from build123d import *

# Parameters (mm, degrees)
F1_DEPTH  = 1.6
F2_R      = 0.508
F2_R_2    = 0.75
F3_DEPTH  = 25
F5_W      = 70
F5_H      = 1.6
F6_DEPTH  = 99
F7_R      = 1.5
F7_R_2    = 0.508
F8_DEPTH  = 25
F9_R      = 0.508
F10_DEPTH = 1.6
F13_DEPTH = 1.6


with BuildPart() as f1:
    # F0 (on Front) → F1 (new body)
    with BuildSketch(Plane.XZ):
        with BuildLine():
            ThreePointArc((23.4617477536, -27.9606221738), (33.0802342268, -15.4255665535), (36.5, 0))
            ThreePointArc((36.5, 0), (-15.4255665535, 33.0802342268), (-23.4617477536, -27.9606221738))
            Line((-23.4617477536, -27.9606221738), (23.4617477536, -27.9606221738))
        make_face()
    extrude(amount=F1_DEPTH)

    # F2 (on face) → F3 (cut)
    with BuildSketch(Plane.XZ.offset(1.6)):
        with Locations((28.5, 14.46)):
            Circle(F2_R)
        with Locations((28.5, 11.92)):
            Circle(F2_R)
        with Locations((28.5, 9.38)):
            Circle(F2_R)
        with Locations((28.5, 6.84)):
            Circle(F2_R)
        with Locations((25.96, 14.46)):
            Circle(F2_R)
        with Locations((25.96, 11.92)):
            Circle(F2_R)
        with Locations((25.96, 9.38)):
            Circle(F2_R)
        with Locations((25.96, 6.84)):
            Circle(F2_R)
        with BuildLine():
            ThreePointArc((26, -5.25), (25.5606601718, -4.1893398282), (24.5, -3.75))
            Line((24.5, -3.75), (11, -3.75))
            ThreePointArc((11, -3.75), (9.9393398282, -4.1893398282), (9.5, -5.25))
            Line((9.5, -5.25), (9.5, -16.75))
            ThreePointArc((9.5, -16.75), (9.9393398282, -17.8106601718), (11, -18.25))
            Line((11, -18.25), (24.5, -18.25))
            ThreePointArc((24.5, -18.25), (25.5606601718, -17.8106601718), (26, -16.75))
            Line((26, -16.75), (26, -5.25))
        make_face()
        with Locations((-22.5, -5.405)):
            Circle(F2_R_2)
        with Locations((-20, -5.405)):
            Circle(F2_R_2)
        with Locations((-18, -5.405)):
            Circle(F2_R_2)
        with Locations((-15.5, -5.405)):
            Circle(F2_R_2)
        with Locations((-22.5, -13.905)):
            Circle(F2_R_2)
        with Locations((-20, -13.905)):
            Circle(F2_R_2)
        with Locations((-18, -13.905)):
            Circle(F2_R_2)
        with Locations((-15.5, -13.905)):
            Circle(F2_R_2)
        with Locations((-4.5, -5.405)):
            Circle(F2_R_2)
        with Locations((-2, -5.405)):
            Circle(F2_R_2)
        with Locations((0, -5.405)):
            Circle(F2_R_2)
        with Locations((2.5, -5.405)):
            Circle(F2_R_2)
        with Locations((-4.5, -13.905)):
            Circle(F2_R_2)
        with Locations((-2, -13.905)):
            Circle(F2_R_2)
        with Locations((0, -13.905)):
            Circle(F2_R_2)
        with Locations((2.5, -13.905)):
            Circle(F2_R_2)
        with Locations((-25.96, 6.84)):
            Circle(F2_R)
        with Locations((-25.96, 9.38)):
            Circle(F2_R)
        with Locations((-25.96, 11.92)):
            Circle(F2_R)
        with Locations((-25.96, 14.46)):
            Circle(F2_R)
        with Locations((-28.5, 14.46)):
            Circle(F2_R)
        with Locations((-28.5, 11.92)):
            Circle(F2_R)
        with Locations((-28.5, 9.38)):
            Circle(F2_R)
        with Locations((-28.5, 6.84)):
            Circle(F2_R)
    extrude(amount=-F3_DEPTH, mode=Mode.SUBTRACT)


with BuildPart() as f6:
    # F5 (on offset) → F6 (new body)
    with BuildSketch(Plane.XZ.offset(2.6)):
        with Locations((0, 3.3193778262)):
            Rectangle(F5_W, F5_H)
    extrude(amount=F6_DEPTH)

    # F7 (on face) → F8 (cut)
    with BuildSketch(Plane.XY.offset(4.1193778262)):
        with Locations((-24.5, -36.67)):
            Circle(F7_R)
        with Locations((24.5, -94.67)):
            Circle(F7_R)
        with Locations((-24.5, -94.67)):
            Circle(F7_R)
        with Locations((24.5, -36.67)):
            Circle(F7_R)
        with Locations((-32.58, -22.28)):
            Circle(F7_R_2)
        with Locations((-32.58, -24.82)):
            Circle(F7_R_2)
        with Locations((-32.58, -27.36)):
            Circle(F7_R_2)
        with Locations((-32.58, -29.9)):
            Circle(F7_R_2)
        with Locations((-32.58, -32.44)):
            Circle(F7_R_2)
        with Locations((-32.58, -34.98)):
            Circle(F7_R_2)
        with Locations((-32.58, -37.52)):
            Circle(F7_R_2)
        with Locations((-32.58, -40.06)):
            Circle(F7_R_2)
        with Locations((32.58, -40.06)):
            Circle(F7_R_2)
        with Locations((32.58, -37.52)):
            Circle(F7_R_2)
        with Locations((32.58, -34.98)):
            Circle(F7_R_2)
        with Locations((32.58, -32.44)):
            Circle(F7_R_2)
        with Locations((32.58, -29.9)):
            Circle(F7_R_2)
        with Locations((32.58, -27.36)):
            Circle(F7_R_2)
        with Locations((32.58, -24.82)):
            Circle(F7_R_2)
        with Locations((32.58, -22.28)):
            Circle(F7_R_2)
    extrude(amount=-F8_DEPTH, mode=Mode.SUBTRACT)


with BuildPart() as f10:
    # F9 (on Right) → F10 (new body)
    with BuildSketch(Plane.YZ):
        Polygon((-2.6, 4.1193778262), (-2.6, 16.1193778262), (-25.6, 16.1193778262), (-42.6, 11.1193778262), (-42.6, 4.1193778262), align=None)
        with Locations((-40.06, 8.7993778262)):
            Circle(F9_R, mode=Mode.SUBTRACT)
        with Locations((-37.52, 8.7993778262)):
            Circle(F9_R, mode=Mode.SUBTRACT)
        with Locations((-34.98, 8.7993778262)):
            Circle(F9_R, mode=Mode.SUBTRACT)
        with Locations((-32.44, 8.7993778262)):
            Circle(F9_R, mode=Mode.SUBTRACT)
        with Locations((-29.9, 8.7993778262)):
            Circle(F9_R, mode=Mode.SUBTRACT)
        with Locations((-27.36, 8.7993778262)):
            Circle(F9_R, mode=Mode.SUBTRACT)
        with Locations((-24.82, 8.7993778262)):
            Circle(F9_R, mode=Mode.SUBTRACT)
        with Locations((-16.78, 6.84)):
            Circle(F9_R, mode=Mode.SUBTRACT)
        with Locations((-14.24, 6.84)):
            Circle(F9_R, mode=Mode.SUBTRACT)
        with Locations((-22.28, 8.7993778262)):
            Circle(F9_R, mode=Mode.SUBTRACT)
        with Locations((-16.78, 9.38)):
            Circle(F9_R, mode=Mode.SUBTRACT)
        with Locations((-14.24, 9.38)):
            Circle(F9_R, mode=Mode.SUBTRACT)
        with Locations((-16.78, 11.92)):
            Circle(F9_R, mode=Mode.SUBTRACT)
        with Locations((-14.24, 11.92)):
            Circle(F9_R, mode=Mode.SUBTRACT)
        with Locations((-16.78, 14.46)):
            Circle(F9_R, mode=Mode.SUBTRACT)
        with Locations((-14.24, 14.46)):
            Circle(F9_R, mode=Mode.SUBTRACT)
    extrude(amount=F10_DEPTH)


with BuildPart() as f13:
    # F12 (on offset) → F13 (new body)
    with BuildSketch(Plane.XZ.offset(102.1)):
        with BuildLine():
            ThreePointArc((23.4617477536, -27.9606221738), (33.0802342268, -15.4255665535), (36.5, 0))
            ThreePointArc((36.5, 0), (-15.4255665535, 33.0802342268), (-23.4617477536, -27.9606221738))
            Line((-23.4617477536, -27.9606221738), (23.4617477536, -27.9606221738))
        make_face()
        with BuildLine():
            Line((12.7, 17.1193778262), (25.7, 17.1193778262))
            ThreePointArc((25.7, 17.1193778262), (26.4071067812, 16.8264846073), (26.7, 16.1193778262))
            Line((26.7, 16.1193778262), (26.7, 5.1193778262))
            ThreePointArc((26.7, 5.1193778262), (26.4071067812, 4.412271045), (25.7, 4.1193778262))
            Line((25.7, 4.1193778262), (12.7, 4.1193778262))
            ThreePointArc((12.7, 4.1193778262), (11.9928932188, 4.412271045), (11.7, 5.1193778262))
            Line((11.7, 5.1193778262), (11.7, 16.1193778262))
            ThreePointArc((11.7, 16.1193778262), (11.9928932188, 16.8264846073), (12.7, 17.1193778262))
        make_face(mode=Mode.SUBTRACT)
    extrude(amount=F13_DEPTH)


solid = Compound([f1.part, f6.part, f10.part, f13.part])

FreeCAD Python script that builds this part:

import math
import FreeCAD as App
import Part
import Sketcher
from FreeCAD import Vector


def add_polygon(sketch, points):
    """Adds a closed chain of lines whose ends are joined by coincident constraints."""
    first, n = sketch.GeometryCount, len(points)
    for a, b in zip(points, points[1:] + points[:1]):
        sketch.addGeometry(Part.LineSegment(App.Vector(*a, 0), App.Vector(*b, 0)), False)
    for i in range(n):
        sketch.addConstraint(Sketcher.Constraint("Coincident", first + i, 2, first + (i + 1) % n, 1))

doc = App.newDocument("Part")
body = doc.addObject("PartDesign::Body", "Body")

# Sketch on XZ plane
sketch1 = body.newObject("Sketcher::SketchObject", "Sketch")
sketch1.AttachmentSupport = (doc.getObject("XZ_Plane"), [""])
sketch1.MapMode = "FlatFace"
sketch1.addGeometry(Part.ArcOfCircle(Part.Circle(Vector(0, 0, 0), Vector(0, 0, 1), 36.5), math.radians(-50), math.radians(0)), False)
sketch1.addGeometry(Part.ArcOfCircle(Part.Circle(Vector(0, 0, 0), Vector(0, 0, 1), 36.5), math.radians(0), math.radians(230)), False)
sketch1.addGeometry(Part.LineSegment(Vector(-23.461748, -27.960622, 0), Vector(23.461748, -27.960622, 0)), False)
sketch1.addConstraint(Sketcher.Constraint("Tangent", 0, 2, 1, 1))
sketch1.addConstraint(Sketcher.Constraint("Coincident", 1, 2, 2, 1))
sketch1.addConstraint(Sketcher.Constraint("Coincident", 2, 2, 0, 1))
sketch1.addConstraint(Sketcher.Constraint("Horizontal", 2))
sketch1.addConstraint(Sketcher.Constraint("Coincident", 0, 3, -1, 1))
sketch1.addConstraint(Sketcher.Constraint("Equal", 0, 1))
sketch1.addConstraint(Sketcher.Constraint("PointOnObject", 0, 2, -1))
sketch1.addConstraint(Sketcher.Constraint("Radius", 0, 36.5))
sketch1.addConstraint(Sketcher.Constraint("DistanceX", 2, 1, 2, 2, 46.923496))
pad1 = body.newObject("PartDesign::Pad", "Pad")
pad1.Profile = sketch1
pad1.Length = 1.6

# Sketch on XZ plane
sketch2 = body.newObject("Sketcher::SketchObject", "Sketch001")
sketch2.AttachmentSupport = (doc.getObject("XZ_Plane"), [""])
sketch2.MapMode = "FlatFace"
sketch2.AttachmentOffset = App.Placement(Vector(0, 0, 1.6), App.Rotation())
sketch2.addGeometry(Part.Circle(Vector(28.5, 14.46, 0), Vector(0, 0, 1), 0.508), False)
sketch2.addGeometry(Part.Circle(Vector(28.5, 11.92, 0), Vector(0, 0, 1), 0.508), False)
sketch2.addGeometry(Part.Circle(Vector(28.5, 9.38, 0), Vector(0, 0, 1), 0.508), False)
sketch2.addGeometry(Part.Circle(Vector(28.5, 6.84, 0), Vector(0, 0, 1), 0.508), False)
sketch2.addGeometry(Part.Circle(Vector(25.96, 14.46, 0), Vector(0, 0, 1), 0.508), False)
sketch2.addGeometry(Part.Circle(Vector(25.96, 11.92, 0), Vector(0, 0, 1), 0.508), False)
sketch2.addGeometry(Part.Circle(Vector(25.96, 9.38, 0), Vector(0, 0, 1), 0.508), False)
sketch2.addGeometry(Part.Circle(Vector(25.96, 6.84, 0), Vector(0, 0, 1), 0.508), False)
sketch2.addGeometry(Part.ArcOfCircle(Part.Circle(Vector(24.5, -5.25, 0), Vector(0, 0, 1), 1.5), math.radians(0), math.radians(90)), False)
sketch2.addGeometry(Part.LineSegment(Vector(24.5, -3.75, 0), Vector(11, -3.75, 0)), False)
sketch2.addGeometry(Part.ArcOfCircle(Part.Circle(Vector(11, -5.25, 0), Vector(0, 0, 1), 1.5), math.radians(90), math.radians(180)), False)
sketch2.addGeometry(Part.LineSegment(Vector(9.5, -5.25, 0), Vector(9.5, -16.75, 0)), False)
sketch2.addGeometry(Part.ArcOfCircle(Part.Circle(Vector(11, -16.75, 0), Vector(0, 0, 1), 1.5), math.radians(180), math.radians(270)), False)
sketch2.addGeometry(Part.LineSegment(Vector(11, -18.25, 0), Vector(24.5, -18.25, 0)), False)
sketch2.addGeometry(Part.ArcOfCircle(Part.Circle(Vector(24.5, -16.75, 0), Vector(0, 0, 1), 1.5), math.radians(-90), math.radians(0)), False)
sketch2.addGeometry(Part.LineSegment(Vector(26, -16.75, 0), Vector(26, -5.25, 0)), False)
sketch2.addGeometry(Part.Circle(Vector(-22.5, -5.405, 0), Vector(0, 0, 1), 0.75), False)
sketch2.addGeometry(Part.Circle(Vector(-20, -5.405, 0), Vector(0, 0, 1), 0.75), False)
sketch2.addGeometry(Part.Circle(Vector(-18, -5.405, 0), Vector(0, 0, 1), 0.75), False)
sketch2.addGeometry(Part.Circle(Vector(-15.5, -5.405, 0), Vector(0, 0, 1), 0.75), False)
sketch2.addGeometry(Part.Circle(Vector(-22.5, -13.905, 0), Vector(0, 0, 1), 0.75), False)
sketch2.addGeometry(Part.Circle(Vector(-20, -13.905, 0), Vector(0, 0, 1), 0.75), False)
sketch2.addGeometry(Part.Circle(Vector(-18, -13.905, 0), Vector(0, 0, 1), 0.75), False)
sketch2.addGeometry(Part.Circle(Vector(-15.5, -13.905, 0), Vector(0, 0, 1), 0.75), False)
sketch2.addGeometry(Part.Circle(Vector(-4.5, -5.405, 0), Vector(0, 0, 1), 0.75), False)
sketch2.addGeometry(Part.Circle(Vector(-2, -5.405, 0), Vector(0, 0, 1), 0.75), False)
sketch2.addGeometry(Part.Circle(Vector(0, -5.405, 0), Vector(0, 0, 1), 0.75), False)
sketch2.addGeometry(Part.Circle(Vector(2.5, -5.405, 0), Vector(0, 0, 1), 0.75), False)
sketch2.addGeometry(Part.Circle(Vector(-4.5, -13.905, 0), Vector(0, 0, 1), 0.75), False)
sketch2.addGeometry(Part.Circle(Vector(-2, -13.905, 0), Vector(0, 0, 1), 0.75), False)
sketch2.addGeometry(Part.Circle(Vector(0, -13.905, 0), Vector(0, 0, 1), 0.75), False)
sketch2.addGeometry(Part.Circle(Vector(2.5, -13.905, 0), Vector(0, 0, 1), 0.75), False)
sketch2.addGeometry(Part.Circle(Vector(-25.96, 6.84, 0), Vector(0, 0, 1), 0.508), False)
sketch2.addGeometry(Part.Circle(Vector(-25.96, 9.38, 0), Vector(0, 0, 1), 0.508), False)
sketch2.addGeometry(Part.Circle(Vector(-25.96, 11.92, 0), Vector(0, 0, 1), 0.508), False)
sketch2.addGeometry(Part.Circle(Vector(-25.96, 14.46, 0), Vector(0, 0, 1), 0.508), False)
sketch2.addGeometry(Part.Circle(Vector(-28.5, 14.46, 0), Vector(0, 0, 1), 0.508), False)
sketch2.addGeometry(Part.Circle(Vector(-28.5, 11.92, 0), Vector(0, 0, 1), 0.508), False)
sketch2.addGeometry(Part.Circle(Vector(-28.5, 9.38, 0), Vector(0, 0, 1), 0.508), False)
sketch2.addGeometry(Part.Circle(Vector(-28.5, 6.84, 0), Vector(0, 0, 1), 0.508), False)
sketch2.addConstraint(Sketcher.Constraint("Tangent", 8, 2, 9, 1))
sketch2.addConstraint(Sketcher.Constraint("Tangent", 9, 2, 10, 1))
sketch2.addConstraint(Sketcher.Constraint("Tangent", 10, 2, 11, 1))
sketch2.addConstraint(Sketcher.Constraint("Tangent", 11, 2, 12, 1))
sketch2.addConstraint(Sketcher.Constraint("Tangent", 12, 2, 13, 1))
sketch2.addConstraint(Sketcher.Constraint("Tangent", 13, 2, 14, 1))
sketch2.addConstraint(Sketcher.Constraint("Tangent", 14, 2, 15, 1))
sketch2.addConstraint(Sketcher.Constraint("Tangent", 15, 2, 8, 1))
sketch2.addConstraint(Sketcher.Constraint("Horizontal", 9))
sketch2.addConstraint(Sketcher.Constraint("Vertical", 11))
sketch2.addConstraint(Sketcher.Constraint("Horizontal", 13))
sketch2.addConstraint(Sketcher.Constraint("Vertical", 15))
sketch2.addConstraint(Sketcher.Constraint("Equal", 0, 1))
sketch2.addConstraint(Sketcher.Constraint("Equal", 1, 2))
sketch2.addConstraint(Sketcher.Constraint("Equal", 2, 3))
sketch2.addConstraint(Sketcher.Constraint("Equal", 3, 4))
sketch2.addConstraint(Sketcher.Constraint("Equal", 4, 5))
sketch2.addConstraint(Sketcher.Constraint("Equal", 5, 6))
sketch2.addConstraint(Sketcher.Constraint("Equal", 6, 7))
sketch2.addConstraint(Sketcher.Constraint("Equal", 8, 10))
sketch2.addConstraint(Sketcher.Constraint("Equal", 10, 12))
sketch2.addConstraint(Sketcher.Constraint("Equal", 12, 14))
sketch2.addConstraint(Sketcher.Constraint("Equal", 16, 17))
sketch2.addConstraint(Sketcher.Constraint("Equal", 17, 18))
sketch2.addConstraint(Sketcher.Constraint("Equal", 18, 19))
sketch2.addConstraint(Sketcher.Constraint("Equal", 19, 20))
sketch2.addConstraint(Sketcher.Constraint("Equal", 20, 21))
sketch2.addConstraint(Sketcher.Constraint("Equal", 21, 22))
sketch2.addConstraint(Sketcher.Constraint("Equal", 22, 23))
sketch2.addConstraint(Sketcher.Constraint("Equal", 23, 24))
sketch2.addConstraint(Sketcher.Constraint("Equal", 24, 25))
sketch2.addConstraint(Sketcher.Constraint("Equal", 25, 26))
sketch2.addConstraint(Sketcher.Constraint("Equal", 26, 27))
sketch2.addConstraint(Sketcher.Constraint("Equal", 27, 28))
sketch2.addConstraint(Sketcher.Constraint("Equal", 28, 29))
sketch2.addConstraint(Sketcher.Constraint("Equal", 29, 30))
sketch2.addConstraint(Sketcher.Constraint("Equal", 30, 31))
sketch2.addConstraint(Sketcher.Constraint("Equal", 7, 32))
sketch2.addConstraint(Sketcher.Constraint("Equal", 32, 33))
sketch2.addConstraint(Sketcher.Constraint("Equal", 33, 34))
sketch2.addConstraint(Sketcher.Constraint("Equal", 34, 35))
sketch2.addConstraint(Sketcher.Constraint("Equal", 35, 36))
sketch2.addConstraint(Sketcher.Constraint("Equal", 36, 37))
sketch2.addConstraint(Sketcher.Constraint("Equal", 37, 38))
sketch2.addConstraint(Sketcher.Constraint("Equal", 38, 39))
sketch2.addConstraint(Sketcher.Constraint("Symmetric", 7, 3, 32, 3, -2))
sketch2.addConstraint(Sketcher.Constraint("Symmetric", 6, 3, 33, 3, -2))
sketch2.addConstraint(Sketcher.Constraint("Symmetric", 5, 3, 34, 3, -2))
sketch2.addConstraint(Sketcher.Constraint("Symmetric", 4, 3, 35, 3, -2))
sketch2.addConstraint(Sketcher.Constraint("Symmetric", 0, 3, 36, 3, -2))
sketch2.addConstraint(Sketcher.Constraint("Symmetric", 1, 3, 37, 3, -2))
sketch2.addConstraint(Sketcher.Constraint("Symmetric", 2, 3, 38, 3, -2))
sketch2.addConstraint(Sketcher.Constraint("Symmetric", 3, 3, 39, 3, -2))
sketch2.addConstraint(Sketcher.Constraint("PointOnObject", 26, 3, -2))
sketch2.addConstraint(Sketcher.Constraint("PointOnObject", 30, 3, -2))
sketch2.addConstraint(Sketcher.Constraint("Horizontal", 0, 3, 4, 3))
sketch2.addConstraint(Sketcher.Constraint("Horizontal", 1, 3, 5, 3))
sketch2.addConstraint(Sketcher.Constraint("Horizontal", 2, 3, 6, 3))
sketch2.addConstraint(Sketcher.Constraint("Horizontal", 3, 3, 7, 3))
sketch2.addConstraint(Sketcher.Constraint("Horizontal", 16, 3, 17, 3))
sketch2.addConstraint(Sketcher.Constraint("Horizontal", 17, 3, 18, 3))
sketch2.addConstraint(Sketcher.Constraint("Horizontal", 18, 3, 19, 3))
sketch2.addConstraint(Sketcher.Constraint("Horizontal", 20, 3, 21, 3))
sketch2.addConstraint(Sketcher.Constraint("Horizontal", 21, 3, 22, 3))
sketch2.addConstraint(Sketcher.Constraint("Horizontal", 22, 3, 23, 3))
sketch2.addConstraint(Sketcher.Constraint("Horizontal", 19, 3, 24, 3))
sketch2.addConstraint(Sketcher.Constraint("Horizontal", 24, 3, 25, 3))
sketch2.addConstraint(Sketcher.Constraint("Horizontal", 25, 3, 26, 3))
sketch2.addConstraint(Sketcher.Constraint("Horizontal", 26, 3, 27, 3))
sketch2.addConstraint(Sketcher.Constraint("Horizontal", 23, 3, 28, 3))
sketch2.addConstraint(Sketcher.Constraint("Horizontal", 28, 3, 29, 3))
sketch2.addConstraint(Sketcher.Constraint("Horizontal", 29, 3, 30, 3))
sketch2.addConstraint(Sketcher.Constraint("Horizontal", 30, 3, 31, 3))
sketch2.addConstraint(Sketcher.Constraint("Vertical", 0, 3, 1, 3))
sketch2.addConstraint(Sketcher.Constraint("Vertical", 1, 3, 2, 3))
sketch2.addConstraint(Sketcher.Constraint("Vertical", 2, 3, 3, 3))
sketch2.addConstraint(Sketcher.Constraint("Vertical", 4, 3, 5, 3))
sketch2.addConstraint(Sketcher.Constraint("Vertical", 5, 3, 6, 3))
sketch2.addConstraint(Sketcher.Constraint("Vertical", 6, 3, 7, 3))
sketch2.addConstraint(Sketcher.Constraint("Vertical", 16, 3, 20, 3))
sketch2.addConstraint(Sketcher.Constraint("Vertical", 17, 3, 21, 3))
sketch2.addConstraint(Sketcher.Constraint("Vertical", 18, 3, 22, 3))
sketch2.addConstraint(Sketcher.Constraint("Vertical", 19, 3, 23, 3))
sketch2.addConstraint(Sketcher.Constraint("Vertical", 24, 3, 28, 3))
sketch2.addConstraint(Sketcher.Constraint("Vertical", 25, 3, 29, 3))
sketch2.addConstraint(Sketcher.Constraint("Vertical", 27, 3, 31, 3))
sketch2.addConstraint(Sketcher.Constraint("Diameter", 16, 1.5))
sketch2.addConstraint(Sketcher.Constraint("Radius", 8, 1.5))
sketch2.addConstraint(Sketcher.Constraint("Diameter", 0, 1.016))
sketch2.addConstraint(Sketcher.Constraint("DistanceX", 9, 2, 9, 1, 13.5))
sketch2.addConstraint(Sketcher.Constraint("DistanceY", 11, 2, 11, 1, 11.5))
sketch2.addConstraint(Sketcher.Constraint("DistanceX", -1, 1, 10, 3, 11.0))
sketch2.addConstraint(Sketcher.Constraint("DistanceX", 17, 3, -1, 1, 20.0))
sketch2.addConstraint(Sketcher.Constraint("DistanceX", 18, 3, -1, 1, 18.0))
sketch2.addConstraint(Sketcher.Constraint("DistanceX", 25, 3, -1, 1, 2.0))
sketch2.addConstraint(Sketcher.Constraint("DistanceX", 8, 3, 3, 3, 4.0))
sketch2.addConstraint(Sketcher.Constraint("DistanceX", 16, 3, 8, 3, 47.0))
sketch2.addConstraint(Sketcher.Constraint("DistanceX", 16, 3, 19, 3, 7.0))
sketch2.addConstraint(Sketcher.Constraint("DistanceX", 19, 3, 24, 3, 11.0))
sketch2.addConstraint(Sketcher.Constraint("DistanceX", 24, 3, 27, 3, 7.0))
sketch2.addConstraint(Sketcher.Constraint("DistanceY", 20, 3, 16, 3, 8.5))
sketch2.addConstraint(Sketcher.Constraint("DistanceY", -1, 1, 0, 3, 14.46))
sketch2.addConstraint(Sketcher.Constraint("DistanceY", -1, 1, 1, 3, 11.92))
sketch2.addConstraint(Sketcher.Constraint("DistanceY", -1, 1, 2, 3, 9.38))
sketch2.addConstraint(Sketcher.Constraint("DistanceY", -1, 1, 3, 3, 6.84))
sketch2.addConstraint(Sketcher.Constraint("DistanceX", -1, 1, 4, 3, 25.96))
sketch2.addConstraint(Sketcher.Constraint("DistanceY", 8, 3, -1, 1, 5.25))
sketch2.addConstraint(Sketcher.Constraint("DistanceY", 16, 3, -1, 1, 5.405))
pocket1 = body.newObject("PartDesign::Pocket", "Pocket")
pocket1.Profile = sketch2
pocket1.Length = 25
body2 = doc.addObject("PartDesign::Body", "Body001")

# Sketch on XZ plane
sketch3 = body2.newObject("Sketcher::SketchObject", "Sketch002")
sketch3.AttachmentSupport = (doc.getObject("XZ_Plane001"), [""])
sketch3.MapMode = "FlatFace"
sketch3.AttachmentOffset = App.Placement(Vector(0, 0, 2.6), App.Rotation())
add_polygon(sketch3, [(-35, 4.119378), (-35, 2.519378), (35, 2.519378), (35, 4.119378)])  # lines 0-3
sketch3.addConstraint(Sketcher.Constraint("Vertical", 0))
sketch3.addConstraint(Sketcher.Constraint("Horizontal", 1))
sketch3.addConstraint(Sketcher.Constraint("Vertical", 2))
sketch3.addConstraint(Sketcher.Constraint("Horizontal", 3))
sketch3.addConstraint(Sketcher.Constraint("DistanceX", 1, 1, 1, 2, 70.0))
sketch3.addConstraint(Sketcher.Constraint("DistanceY", 0, 2, 0, 1, 1.6))
sketch3.addConstraint(Sketcher.Constraint("DistanceX", 0, 2, -1, 1, 35.0))
sketch3.addConstraint(Sketcher.Constraint("DistanceY", -1, 1, 0, 2, 2.519378))
pad2 = body2.newObject("PartDesign::Pad", "Pad001")
pad2.Profile = sketch3
pad2.Length = 99

# Sketch on XY plane
sketch4 = body2.newObject("Sketcher::SketchObject", "Sketch003")
sketch4.AttachmentSupport = (doc.getObject("XY_Plane001"), [""])
sketch4.MapMode = "FlatFace"
sketch4.AttachmentOffset = App.Placement(Vector(0, 0, 4.119378), App.Rotation())
sketch4.addGeometry(Part.Circle(Vector(-24.5, -36.67, 0), Vector(0, 0, 1), 1.5), False)
sketch4.addGeometry(Part.Circle(Vector(24.5, -94.67, 0), Vector(0, 0, 1), 1.5), False)
sketch4.addGeometry(Part.Circle(Vector(-24.5, -94.67, 0), Vector(0, 0, 1), 1.5), False)
sketch4.addGeometry(Part.Circle(Vector(24.5, -36.67, 0), Vector(0, 0, 1), 1.5), False)
sketch4.addGeometry(Part.Circle(Vector(-32.58, -22.28, 0), Vector(0, 0, 1), 0.508), False)
sketch4.addGeometry(Part.Circle(Vector(-32.58, -24.82, 0), Vector(0, 0, 1), 0.508), False)
sketch4.addGeometry(Part.Circle(Vector(-32.58, -27.36, 0), Vector(0, 0, 1), 0.508), False)
sketch4.addGeometry(Part.Circle(Vector(-32.58, -29.9, 0), Vector(0, 0, 1), 0.508), False)
sketch4.addGeometry(Part.Circle(Vector(-32.58, -32.44, 0), Vector(0, 0, 1), 0.508), False)
sketch4.addGeometry(Part.Circle(Vector(-32.58, -34.98, 0), Vector(0, 0, 1), 0.508), False)
sketch4.addGeometry(Part.Circle(Vector(-32.58, -37.52, 0), Vector(0, 0, 1), 0.508), False)
sketch4.addGeometry(Part.Circle(Vector(-32.58, -40.06, 0), Vector(0, 0, 1), 0.508), False)
sketch4.addGeometry(Part.Circle(Vector(32.58, -40.06, 0), Vector(0, 0, 1), 0.508), False)
sketch4.addGeometry(Part.Circle(Vector(32.58, -37.52, 0), Vector(0, 0, 1), 0.508), False)
sketch4.addGeometry(Part.Circle(Vector(32.58, -34.98, 0), Vector(0, 0, 1), 0.508), False)
sketch4.addGeometry(Part.Circle(Vector(32.58, -32.44, 0), Vector(0, 0, 1), 0.508), False)
sketch4.addGeometry(Part.Circle(Vector(32.58, -29.9, 0), Vector(0, 0, 1), 0.508), False)
sketch4.addGeometry(Part.Circle(Vector(32.58, -27.36, 0), Vector(0, 0, 1), 0.508), False)
sketch4.addGeometry(Part.Circle(Vector(32.58, -24.82, 0), Vector(0, 0, 1), 0.508), False)
sketch4.addGeometry(Part.Circle(Vector(32.58, -22.28, 0), Vector(0, 0, 1), 0.508), False)
sketch4.addConstraint(Sketcher.Constraint("Equal", 0, 1))
sketch4.addConstraint(Sketcher.Constraint("Equal", 1, 2))
sketch4.addConstraint(Sketcher.Constraint("Equal", 2, 3))
sketch4.addConstraint(Sketcher.Constraint("Equal", 4, 5))
sketch4.addConstraint(Sketcher.Constraint("Equal", 5, 6))
sketch4.addConstraint(Sketcher.Constraint("Equal", 6, 7))
sketch4.addConstraint(Sketcher.Constraint("Equal", 7, 8))
sketch4.addConstraint(Sketcher.Constraint("Equal", 8, 9))
sketch4.addConstraint(Sketcher.Constraint("Equal", 9, 10))
sketch4.addConstraint(Sketcher.Constraint("Equal", 10, 11))
sketch4.addConstraint(Sketcher.Constraint("Equal", 11, 12))
sketch4.addConstraint(Sketcher.Constraint("Equal", 12, 13))
sketch4.addConstraint(Sketcher.Constraint("Equal", 13, 14))
sketch4.addConstraint(Sketcher.Constraint("Equal", 14, 15))
sketch4.addConstraint(Sketcher.Constraint("Equal", 15, 16))
sketch4.addConstraint(Sketcher.Constraint("Equal", 16, 17))
sketch4.addConstraint(Sketcher.Constraint("Equal", 17, 18))
sketch4.addConstraint(Sketcher.Constraint("Equal", 18, 19))
sketch4.addConstraint(Sketcher.Constraint("Symmetric", 1, 3, 2, 3, -2))
sketch4.addConstraint(Sketcher.Constraint("Symmetric", 0, 3, 3, 3, -2))
sketch4.addConstraint(Sketcher.Constraint("Symmetric", 11, 3, 12, 3, -2))
sketch4.addConstraint(Sketcher.Constraint("Symmetric", 10, 3, 13, 3, -2))
sketch4.addConstraint(Sketcher.Constraint("Symmetric", 9, 3, 14, 3, -2))
sketch4.addConstraint(Sketcher.Constraint("Symmetric", 8, 3, 15, 3, -2))
sketch4.addConstraint(Sketcher.Constraint("Symmetric", 7, 3, 16, 3, -2))
sketch4.addConstraint(Sketcher.Constraint("Symmetric", 6, 3, 17, 3, -2))
sketch4.addConstraint(Sketcher.Constraint("Symmetric", 5, 3, 18, 3, -2))
sketch4.addConstraint(Sketcher.Constraint("Symmetric", 4, 3, 19, 3, -2))
sketch4.addConstraint(Sketcher.Constraint("Vertical", 0, 3, 2, 3))
sketch4.addConstraint(Sketcher.Constraint("Vertical", 4, 3, 5, 3))
sketch4.addConstraint(Sketcher.Constraint("Vertical", 5, 3, 6, 3))
sketch4.addConstraint(Sketcher.Constraint("Vertical", 6, 3, 7, 3))
sketch4.addConstraint(Sketcher.Constraint("Vertical", 7, 3, 8, 3))
sketch4.addConstraint(Sketcher.Constraint("Vertical", 8, 3, 9, 3))
sketch4.addConstraint(Sketcher.Constraint("Vertical", 9, 3, 10, 3))
sketch4.addConstraint(Sketcher.Constraint("Vertical", 10, 3, 11, 3))
sketch4.addConstraint(Sketcher.Constraint("Diameter", 0, 3.0))
sketch4.addConstraint(Sketcher.Constraint("Diameter", 4, 1.016))
sketch4.addConstraint(Sketcher.Constraint("DistanceX", 0, 3, 1, 3, 49.0))
sketch4.addConstraint(Sketcher.Constraint("DistanceY", 1, 3, 0, 3, 58.0))
sketch4.addConstraint(Sketcher.Constraint("DistanceY", 7, 3, -1, 1, 29.9))
sketch4.addConstraint(Sketcher.Constraint("DistanceY", 13, 3, 18, 3, 12.7))
sketch4.addConstraint(Sketcher.Constraint("DistanceY", 14, 3, 19, 3, 12.7))
sketch4.addConstraint(Sketcher.Constraint("DistanceY", 0, 3, -1, 1, 36.67))
sketch4.addConstraint(Sketcher.Constraint("DistanceX", 4, 3, -1, 1, 32.58))
sketch4.addConstraint(Sketcher.Constraint("DistanceY", 4, 3, -1, 1, 22.28))
sketch4.addConstraint(Sketcher.Constraint("DistanceY", 5, 3, -1, 1, 24.82))
sketch4.addConstraint(Sketcher.Constraint("DistanceY", 6, 3, -1, 1, 27.36))
sketch4.addConstraint(Sketcher.Constraint("DistanceY", 8, 3, -1, 1, 32.44))
sketch4.addConstraint(Sketcher.Constraint("DistanceY", 11, 3, -1, 1, 40.06))
pocket2 = body2.newObject("PartDesign::Pocket", "Pocket001")
pocket2.Profile = sketch4
pocket2.Length = 25
body3 = doc.addObject("PartDesign::Body", "Body002")

# Sketch on YZ plane
sketch5 = body3.newObject("Sketcher::SketchObject", "Sketch004")
sketch5.AttachmentSupport = (doc.getObject("YZ_Plane002"), [""])
sketch5.MapMode = "FlatFace"
add_polygon(sketch5, [(-2.6, 4.119378), (-2.6, 16.119378), (-25.6, 16.119378), (-42.6, 11.119378), (-42.6, 4.119378)])  # lines 0-4
sketch5.addGeometry(Part.Circle(Vector(-40.06, 8.799378, 0), Vector(0, 0, 1), 0.508), False)  # 5
sketch5.addGeometry(Part.Circle(Vector(-37.52, 8.799378, 0), Vector(0, 0, 1), 0.508), False)  # 6
sketch5.addGeometry(Part.Circle(Vector(-34.98, 8.799378, 0), Vector(0, 0, 1), 0.508), False)  # 7
sketch5.addGeometry(Part.Circle(Vector(-32.44, 8.799378, 0), Vector(0, 0, 1), 0.508), False)  # 8
sketch5.addGeometry(Part.Circle(Vector(-29.9, 8.799378, 0), Vector(0, 0, 1), 0.508), False)  # 9
sketch5.addGeometry(Part.Circle(Vector(-27.36, 8.799378, 0), Vector(0, 0, 1), 0.508), False)  # 10
sketch5.addGeometry(Part.Circle(Vector(-16.78, 6.84, 0), Vector(0, 0, 1), 0.508), False)  # 11
sketch5.addGeometry(Part.Circle(Vector(-14.24, 6.84, 0), Vector(0, 0, 1), 0.508), False)  # 12
sketch5.addGeometry(Part.Circle(Vector(-24.82, 8.799378, 0), Vector(0, 0, 1), 0.508), False)  # 13
sketch5.addGeometry(Part.Circle(Vector(-22.28, 8.799378, 0), Vector(0, 0, 1), 0.508), False)  # 14
sketch5.addGeometry(Part.Circle(Vector(-16.78, 9.38, 0), Vector(0, 0, 1), 0.508), False)  # 15
sketch5.addGeometry(Part.Circle(Vector(-14.24, 9.38, 0), Vector(0, 0, 1), 0.508), False)  # 16
sketch5.addGeometry(Part.Circle(Vector(-16.78, 11.92, 0), Vector(0, 0, 1), 0.508), False)  # 17
sketch5.addGeometry(Part.Circle(Vector(-14.24, 11.92, 0), Vector(0, 0, 1), 0.508), False)  # 18
sketch5.addGeometry(Part.Circle(Vector(-16.78, 14.46, 0), Vector(0, 0, 1), 0.508), False)  # 19
sketch5.addGeometry(Part.Circle(Vector(-14.24, 14.46, 0), Vector(0, 0, 1), 0.508), False)  # 20
sketch5.addConstraint(Sketcher.Constraint("Vertical", 0))
sketch5.addConstraint(Sketcher.Constraint("Horizontal", 1))
sketch5.addConstraint(Sketcher.Constraint("Vertical", 3))
sketch5.addConstraint(Sketcher.Constraint("Horizontal", 4))
sketch5.addConstraint(Sketcher.Constraint("Equal", 5, 6))
sketch5.addConstraint(Sketcher.Constraint("Equal", 6, 7))
sketch5.addConstraint(Sketcher.Constraint("Equal", 7, 8))
sketch5.addConstraint(Sketcher.Constraint("Equal", 8, 9))
sketch5.addConstraint(Sketcher.Constraint("Equal", 9, 10))
sketch5.addConstraint(Sketcher.Constraint("Equal", 10, 11))
sketch5.addConstraint(Sketcher.Constraint("Equal", 11, 12))
sketch5.addConstraint(Sketcher.Constraint("Equal", 12, 13))
sketch5.addConstraint(Sketcher.Constraint("Equal", 13, 14))
sketch5.addConstraint(Sketcher.Constraint("Equal", 14, 15))
sketch5.addConstraint(Sketcher.Constraint("Equal", 15, 16))
sketch5.addConstraint(Sketcher.Constraint("Equal", 16, 17))
sketch5.addConstraint(Sketcher.Constraint("Equal", 17, 18))
sketch5.addConstraint(Sketcher.Constraint("Equal", 18, 19))
sketch5.addConstraint(Sketcher.Constraint("Equal", 19, 20))
sketch5.addConstraint(Sketcher.Constraint("Horizontal", 5, 3, 6, 3))
sketch5.addConstraint(Sketcher.Constraint("Horizontal", 6, 3, 7, 3))
sketch5.addConstraint(Sketcher.Constraint("Horizontal", 7, 3, 8, 3))
sketch5.addConstraint(Sketcher.Constraint("Horizontal", 8, 3, 9, 3))
sketch5.addConstraint(Sketcher.Constraint("Horizontal", 9, 3, 10, 3))
sketch5.addConstraint(Sketcher.Constraint("Horizontal", 11, 3, 12, 3))
sketch5.addConstraint(Sketcher.Constraint("Horizontal", 10, 3, 13, 3))
sketch5.addConstraint(Sketcher.Constraint("Horizontal", 13, 3, 14, 3))
sketch5.addConstraint(Sketcher.Constraint("Horizontal", 15, 3, 16, 3))
sketch5.addConstraint(Sketcher.Constraint("Horizontal", 17, 3, 18, 3))
sketch5.addConstraint(Sketcher.Constraint("Horizontal", 19, 3, 20, 3))
sketch5.addConstraint(Sketcher.Constraint("Vertical", 11, 3, 15, 3))
sketch5.addConstraint(Sketcher.Constraint("Vertical", 12, 3, 16, 3))
sketch5.addConstraint(Sketcher.Constraint("Vertical", 15, 3, 17, 3))
sketch5.addConstraint(Sketcher.Constraint("Vertical", 16, 3, 18, 3))
sketch5.addConstraint(Sketcher.Constraint("Vertical", 17, 3, 19, 3))
sketch5.addConstraint(Sketcher.Constraint("Vertical", 18, 3, 20, 3))
sketch5.addConstraint(Sketcher.Constraint("DistanceX", 1, 2, 1, 1, 23.0))
sketch5.addConstraint(Sketcher.Constraint("DistanceX", 4, 1, 4, 2, 40.0))
sketch5.addConstraint(Sketcher.Constraint("DistanceY", 0, 1, 0, 2, 12.0))
sketch5.addConstraint(Sketcher.Constraint("DistanceY", 3, 2, 3, 1, 7.0))
sketch5.addConstraint(Sketcher.Constraint("Diameter", 5, 1.016))
sketch5.addConstraint(Sketcher.Constraint("DistanceX", 9, 3, -1, 1, 29.9))
sketch5.addConstraint(Sketcher.Constraint("DistanceX", 0, 2, -1, 1, 2.6))
sketch5.addConstraint(Sketcher.Constraint("DistanceX", 5, 3, 10, 3, 12.7))
sketch5.addConstraint(Sketcher.Constraint("DistanceX", 7, 3, 11, 3, 18.2))
sketch5.addConstraint(Sketcher.Constraint("DistanceX", 8, 3, 12, 3, 18.2))
sketch5.addConstraint(Sketcher.Constraint("DistanceX", 14, 3, 11, 3, 5.5))
sketch5.addConstraint(Sketcher.Constraint("DistanceX", 5, 3, -1, 1, 40.06))
sketch5.addConstraint(Sketcher.Constraint("DistanceX", 6, 3, -1, 1, 37.52))
sketch5.addConstraint(Sketcher.Constraint("DistanceX", 7, 3, -1, 1, 34.98))
sketch5.addConstraint(Sketcher.Constraint("DistanceX", 8, 3, -1, 1, 32.44))
sketch5.addConstraint(Sketcher.Constraint("DistanceY", -1, 1, 11, 3, 6.84))
sketch5.addConstraint(Sketcher.Constraint("DistanceX", 13, 3, -1, 1, 24.82))
sketch5.addConstraint(Sketcher.Constraint("DistanceY", -1, 1, 15, 3, 9.38))
sketch5.addConstraint(Sketcher.Constraint("DistanceY", -1, 1, 17, 3, 11.92))
sketch5.addConstraint(Sketcher.Constraint("DistanceY", -1, 1, 19, 3, 14.46))
sketch5.addConstraint(Sketcher.Constraint("DistanceY", 13, 3, 1, 2, 7.32))
sketch5.addConstraint(Sketcher.Constraint("DistanceY", -1, 1, 5, 3, 8.799378))
pad3 = body3.newObject("PartDesign::Pad", "Pad002")
pad3.Profile = sketch5
pad3.Length = 1.6
body4 = doc.addObject("PartDesign::Body", "Body003")

# Sketch on XZ plane
sketch6 = body4.newObject("Sketcher::SketchObject", "Sketch005")
sketch6.AttachmentSupport = (doc.getObject("XZ_Plane003"), [""])
sketch6.MapMode = "FlatFace"
sketch6.AttachmentOffset = App.Placement(Vector(0, 0, 102.1), App.Rotation())
sketch6.addGeometry(Part.ArcOfCircle(Part.Circle(Vector(0, 0, 0), Vector(0, 0, 1), 36.5), math.radians(-50), math.radians(0)), False)
sketch6.addGeometry(Part.ArcOfCircle(Part.Circle(Vector(0, 0, 0), Vector(0, 0, 1), 36.5), math.radians(0), math.radians(230)), False)
sketch6.addGeometry(Part.LineSegment(Vector(-23.461748, -27.960622, 0), Vector(23.461748, -27.960622, 0)), False)
sketch6.addGeometry(Part.ArcOfCircle(Part.Circle(Vector(12.7, 16.119378, 0), Vector(0, 0, 1), 1), math.radians(90), math.radians(180)), False)
sketch6.addGeometry(Part.LineSegment(Vector(12.7, 17.119378, 0), Vector(25.7, 17.119378, 0)), False)
sketch6.addGeometry(Part.ArcOfCircle(Part.Circle(Vector(25.7, 16.119378, 0), Vector(0, 0, 1), 1), math.radians(0), math.radians(90)), False)
sketch6.addGeometry(Part.LineSegment(Vector(26.7, 16.119378, 0), Vector(26.7, 5.119378, 0)), False)
sketch6.addGeometry(Part.ArcOfCircle(Part.Circle(Vector(25.7, 5.119378, 0), Vector(0, 0, 1), 1), math.radians(-90), math.radians(0)), False)
sketch6.addGeometry(Part.LineSegment(Vector(25.7, 4.119378, 0), Vector(12.7, 4.119378, 0)), False)
sketch6.addGeometry(Part.ArcOfCircle(Part.Circle(Vector(12.7, 5.119378, 0), Vector(0, 0, 1), 1), math.radians(180), math.radians(270)), False)
sketch6.addGeometry(Part.LineSegment(Vector(11.7, 5.119378, 0), Vector(11.7, 16.119378, 0)), False)
sketch6.addConstraint(Sketcher.Constraint("Tangent", 0, 2, 1, 1))
sketch6.addConstraint(Sketcher.Constraint("Coincident", 1, 2, 2, 1))
sketch6.addConstraint(Sketcher.Constraint("Coincident", 2, 2, 0, 1))
sketch6.addConstraint(Sketcher.Constraint("Tangent", 3, 1, 4, 1))
sketch6.addConstraint(Sketcher.Constraint("Tangent", 4, 2, 5, 2))
sketch6.addConstraint(Sketcher.Constraint("Tangent", 5, 1, 6, 1))
sketch6.addConstraint(Sketcher.Constraint("Tangent", 6, 2, 7, 2))
sketch6.addConstraint(Sketcher.Constraint("Tangent", 7, 1, 8, 1))
sketch6.addConstraint(Sketcher.Constraint("Tangent", 8, 2, 9, 2))
sketch6.addConstraint(Sketcher.Constraint("Tangent", 9, 1, 10, 1))
sketch6.addConstraint(Sketcher.Constraint("Tangent", 10, 2, 3, 2))
sketch6.addConstraint(Sketcher.Constraint("Horizontal", 2))
sketch6.addConstraint(Sketcher.Constraint("Horizontal", 4))
sketch6.addConstraint(Sketcher.Constraint("Vertical", 6))
sketch6.addConstraint(Sketcher.Constraint("Horizontal", 8))
sketch6.addConstraint(Sketcher.Constraint("Vertical", 10))
sketch6.addConstraint(Sketcher.Constraint("Coincident", 0, 3, -1, 1))
sketch6.addConstraint(Sketcher.Constraint("Equal", 0, 1))
sketch6.addConstraint(Sketcher.Constraint("Equal", 3, 5))
sketch6.addConstraint(Sketcher.Constraint("Equal", 5, 7))
sketch6.addConstraint(Sketcher.Constraint("Equal", 7, 9))
sketch6.addConstraint(Sketcher.Constraint("PointOnObject", 0, 2, -1))
sketch6.addConstraint(Sketcher.Constraint("Radius", 3, 1.0))
sketch6.addConstraint(Sketcher.Constraint("Radius", 0, 36.5))
sketch6.addConstraint(Sketcher.Constraint("DistanceX", 4, 1, 4, 2, 13.0))
sketch6.addConstraint(Sketcher.Constraint("DistanceY", 6, 2, 6, 1, 11.0))
sketch6.addConstraint(Sketcher.Constraint("DistanceX", -1, 1, 3, 3, 12.7))
sketch6.addConstraint(Sketcher.Constraint("DistanceY", 1, 2, 9, 3, 33.08))
sketch6.addConstraint(Sketcher.Constraint("DistanceX", 2, 1, 2, 2, 46.923496))
pad4 = body4.newObject("PartDesign::Pad", "Pad003")
pad4.Profile = sketch6
pad4.Length = 1.6

doc.recompute()
